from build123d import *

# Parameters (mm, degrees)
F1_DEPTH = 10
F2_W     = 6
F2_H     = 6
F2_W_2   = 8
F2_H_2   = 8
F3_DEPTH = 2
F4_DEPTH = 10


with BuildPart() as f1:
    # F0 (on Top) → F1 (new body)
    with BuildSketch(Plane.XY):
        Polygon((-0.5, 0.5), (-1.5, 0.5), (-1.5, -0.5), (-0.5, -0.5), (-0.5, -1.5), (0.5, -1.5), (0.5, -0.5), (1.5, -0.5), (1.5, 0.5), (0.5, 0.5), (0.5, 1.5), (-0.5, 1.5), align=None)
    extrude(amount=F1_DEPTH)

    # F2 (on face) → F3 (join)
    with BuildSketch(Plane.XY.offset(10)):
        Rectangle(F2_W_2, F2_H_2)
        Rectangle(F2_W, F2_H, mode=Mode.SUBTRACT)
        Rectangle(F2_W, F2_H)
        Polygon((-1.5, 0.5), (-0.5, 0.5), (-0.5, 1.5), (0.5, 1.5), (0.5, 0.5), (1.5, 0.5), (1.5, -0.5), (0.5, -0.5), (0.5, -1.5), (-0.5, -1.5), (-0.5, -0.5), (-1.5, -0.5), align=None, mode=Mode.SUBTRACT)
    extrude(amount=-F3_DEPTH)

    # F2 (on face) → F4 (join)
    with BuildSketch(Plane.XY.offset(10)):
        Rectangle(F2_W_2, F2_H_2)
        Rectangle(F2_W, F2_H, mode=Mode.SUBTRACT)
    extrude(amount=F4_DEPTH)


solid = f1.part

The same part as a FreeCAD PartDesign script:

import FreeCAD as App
import Part
import Sketcher

V = App.Vector
Q = App.Units.Quantity


def add_polygon(sketch, points):
    """Adds a closed chain of lines whose ends are joined by coincident constraints."""
    first, n = sketch.GeometryCount, len(points)
    for a, b in zip(points, points[1:] + points[:1]):
        sketch.addGeometry(Part.LineSegment(App.Vector(*a, 0), App.Vector(*b, 0)), False)
    for i in range(n):
        sketch.addConstraint(Sketcher.Constraint("Coincident", first + i, 2, first + (i + 1) % n, 1))

doc = App.newDocument("Part")
body = doc.addObject("PartDesign::Body", "Body")

# Sketch on XY plane
sketch1 = doc.addObject("Sketcher::SketchObject", "Sketch")
body.addObject(sketch1)
sketch1.AttachmentSupport = (doc.XY_Plane, [""])
sketch1.MapMode = "FlatFace"
add_polygon(sketch1, [(-0.5, 0.5), (-1.5, 0.5), (-1.5, -0.5), (-0.5, -0.5), (-0.5, -1.5), (0.5, -1.5), (0.5, -0.5), (1.5, -0.5), (1.5, 0.5), (0.5, 0.5), (0.5, 1.5), (-0.5, 1.5)])  # lines 0-11
sketch1.addConstraint(Sketcher.Constraint("Horizontal", 0))
sketch1.addConstraint(Sketcher.Constraint("Vertical", 1))
sketch1.addConstraint(Sketcher.Constraint("Horizontal", 2))
sketch1.addConstraint(Sketcher.Constraint("Vertical", 3))
sketch1.addConstraint(Sketcher.Constraint("Horizontal", 4))
sketch1.addConstraint(Sketcher.Constraint("Vertical", 5))
sketch1.addConstraint(Sketcher.Constraint("Horizontal", 6))
sketch1.addConstraint(Sketcher.Constraint("Vertical", 7))
sketch1.addConstraint(Sketcher.Constraint("Horizontal", 8))
sketch1.addConstraint(Sketcher.Constraint("Vertical", 9))
sketch1.addConstraint(Sketcher.Constraint("Horizontal", 10))
sketch1.addConstraint(Sketcher.Constraint("Vertical", 11))
sketch1.addConstraint(Sketcher.Constraint("Symmetric", 0, 2, 6, 2, -1, 1))
sketch1.addConstraint(Sketcher.Constraint("Symmetric", 2, 2, 8, 2, -1, 1))
sketch1.addConstraint(Sketcher.Constraint("Symmetric", 4, 2, 10, 2, -1, 1))
sketch1.addConstraint(Sketcher.Constraint("Symmetric", 2, 2, 5, 2, -2))
sketch1.addConstraint(Sketcher.Constraint("Equal", 2, 4))
sketch1.addConstraint(Sketcher.Constraint("Equal", 10, 1))
sketch1.addConstraint(Sketcher.Constraint("Equal", 1, 3))
sketch1.addConstraint(Sketcher.Constraint("DistanceX", 0, 2, 0, 1, Q("1 mm")))
pad1 = doc.addObject("PartDesign::Pad", "Pad")
body.addObject(pad1)
pad1.Profile = sketch1
pad1.Length = 10

# Sketch on XY plane
sketch2 = doc.addObject("Sketcher::SketchObject", "Sketch001")
body.addObject(sketch2)
sketch2.AttachmentSupport = (doc.XY_Plane, [""])
sketch2.MapMode = "FlatFace"
sketch2.AttachmentOffset = App.Placement(V(0, 0, 10), App.Rotation())
add_polygon(sketch2, [(-4, 4), (-4, -4), (4, -4), (4, 4)])  # lines 0-3
add_polygon(sketch2, [(-1.5, -0.5), (-1.5, 0.5), (-0.5, 0.5), (-0.5, 1.5), (0.5, 1.5), (0.5, 0.5), (1.5, 0.5), (1.5, -0.5), (0.5, -0.5), (0.5, -1.5), (-0.5, -1.5), (-0.5, -0.5)])  # lines 4-15
sketch2.addConstraint(Sketcher.Constraint("Vertical", 0))
sketch2.addConstraint(Sketcher.Constraint("Horizontal", 1))
sketch2.addConstraint(Sketcher.Constraint("Vertical", 2))
sketch2.addConstraint(Sketcher.Constraint("Horizontal", 3))
sketch2.addConstraint(Sketcher.Constraint("Vertical", 4))
sketch2.addConstraint(Sketcher.Constraint("Horizontal", 5))
sketch2.addConstraint(Sketcher.Constraint("Vertical", 6))
sketch2.addConstraint(Sketcher.Constraint("Horizontal", 7))
sketch2.addConstraint(Sketcher.Constraint("Vertical", 8))
sketch2.addConstraint(Sketcher.Constraint("Horizontal", 9))
sketch2.addConstraint(Sketcher.Constraint("Vertical", 10))
sketch2.addConstraint(Sketcher.Constraint("Horizontal", 11))
sketch2.addConstraint(Sketcher.Constraint("Vertical", 12))
sketch2.addConstraint(Sketcher.Constraint("Horizontal", 13))
sketch2.addConstraint(Sketcher.Constraint("Vertical", 14))
sketch2.addConstraint(Sketcher.Constraint("Horizontal", 15))
sketch2.addConstraint(Sketcher.Constraint("Symmetric", 0, 2, 2, 2, -1, 1))
sketch2.addConstraint(Sketcher.Constraint("Symmetric", 4, 2, 10, 2, -1, 1))
sketch2.addConstraint(Sketcher.Constraint("Symmetric", 6, 2, 12, 2, -1, 1))
sketch2.addConstraint(Sketcher.Constraint("Symmetric", 8, 2, 14, 2, -1, 1))
sketch2.addConstraint(Sketcher.Constraint("Symmetric", 5, 2, 8, 2, -2))
sketch2.addConstraint(Sketcher.Constraint("Equal", 5, 7))
sketch2.addConstraint(Sketcher.Constraint("Equal", 3, 0))
sketch2.addConstraint(Sketcher.Constraint("Equal", 15, 4))
sketch2.addConstraint(Sketcher.Constraint("Equal", 4, 6))
sketch2.addConstraint(Sketcher.Constraint("DistanceX", 1, 1, 1, 2, Q("8 mm")))
sketch2.addConstraint(Sketcher.Constraint("DistanceX", 5, 1, 5, 2, Q("1 mm")))
pad2 = doc.addObject("PartDesign::Pad", "Pad001")
body.addObject(pad2)
pad2.Profile = sketch2
pad2.Length = 2
pad2.Reversed = True

# Sketch on XY plane
sketch3 = doc.addObject("Sketcher::SketchObject", "Sketch002")
body.addObject(sketch3)
sketch3.AttachmentSupport = (doc.XY_Plane, [""])
sketch3.MapMode = "FlatFace"
sketch3.AttachmentOffset = App.Placement(V(0, 0, 10), App.Rotation())
add_polygon(sketch3, [(-4, 4), (-4, -4), (4, -4), (4, 4)])  # lines 0-3
add_polygon(sketch3, [(3, -3), (-3, -3), (-3, 3), (3, 3)])  # lines 4-7
sketch3.addConstraint(Sketcher.Constraint("Vertical", 0))
sketch3.addConstraint(Sketcher.Constraint("Horizontal", 1))
sketch3.addConstraint(Sketcher.Constraint("Vertical", 2))
sketch3.addConstraint(Sketcher.Constraint("Horizontal", 3))
sketch3.addConstraint(Sketcher.Constraint("Horizontal", 4))
sketch3.addConstraint(Sketcher.Constraint("Vertical", 5))
sketch3.addConstraint(Sketcher.Constraint("Horizontal", 6))
sketch3.addConstraint(Sketcher.Constraint("Vertical", 7))
sketch3.addConstraint(Sketcher.Constraint("Symmetric", 0, 2, 2, 2, -1, 1))
sketch3.addConstraint(Sketcher.Constraint("Symmetric", 4, 2, 6, 2, -1, 1))
sketch3.addConstraint(Sketcher.Constraint("Equal", 3, 0))
sketch3.addConstraint(Sketcher.Constraint("Equal", 6, 5))
sketch3.addConstraint(Sketcher.Constraint("DistanceX", 1, 1, 1, 2, Q("8 mm")))
sketch3.addConstraint(Sketcher.Constraint("DistanceX", 4, 2, 4, 1, Q("6 mm")))
pad3 = doc.addObject("PartDesign::Pad", "Pad002")
body.addObject(pad3)
pad3.Profile = sketch3
pad3.Length = 10

doc.recompute()
